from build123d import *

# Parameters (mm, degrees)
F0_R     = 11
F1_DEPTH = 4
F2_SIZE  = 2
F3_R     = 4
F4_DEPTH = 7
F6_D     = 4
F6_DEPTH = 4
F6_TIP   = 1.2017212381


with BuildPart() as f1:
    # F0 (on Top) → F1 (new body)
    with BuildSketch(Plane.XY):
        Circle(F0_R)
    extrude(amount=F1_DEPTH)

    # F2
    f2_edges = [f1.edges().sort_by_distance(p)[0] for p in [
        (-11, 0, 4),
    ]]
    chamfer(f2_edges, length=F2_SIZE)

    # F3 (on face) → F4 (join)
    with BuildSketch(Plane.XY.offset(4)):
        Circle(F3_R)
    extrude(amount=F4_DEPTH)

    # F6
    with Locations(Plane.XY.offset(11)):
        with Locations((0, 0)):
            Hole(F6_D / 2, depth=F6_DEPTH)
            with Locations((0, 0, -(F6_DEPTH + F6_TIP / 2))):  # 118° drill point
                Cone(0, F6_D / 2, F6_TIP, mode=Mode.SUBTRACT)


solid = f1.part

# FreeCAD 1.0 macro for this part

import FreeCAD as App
import Part
import Sketcher
from FreeCAD import Vector
Q = App.Units.Quantity


def edges_at(feature, points):
    """Names of the edges that pass closest to the given points."""
    edges = feature.Shape.Edges
    near = lambda p: min(range(len(edges)), key=lambda i: edges[i].distToShape(Part.Vertex(*p))[0])
    return sorted({f"Edge{near(p) + 1}" for p in points})

doc = App.newDocument("Part")
body = doc.addObject("PartDesign::Body", "Body")

# Sketch on XY plane
sketch1 = body.newObject("Sketcher::SketchObject", "Sketch")
sketch1.AttachmentSupport = (doc.getObject("XY_Plane"), [""])
sketch1.MapMode = "FlatFace"
sketch1.addGeometry(Part.Circle(Vector(0, 0, 0), Vector(0, 0, 1), 11), False)
sketch1.addConstraint([
    Sketcher.Constraint("Coincident", 0, 3, -1, 1),
    Sketcher.Constraint("Diameter", 0, Q("22 mm")),
])
pad1 = body.newObject("PartDesign::Pad", "Pad")
pad1.Profile = sketch1
pad1.Length = 4
doc.recompute()

chamfer = body.newObject("PartDesign::Chamfer", "Chamfer")
chamfer.Base = (pad1, edges_at(pad1, [(-11, 0, 4)]))
chamfer.Size = 2

# Sketch on XY plane
sketch2 = body.newObject("Sketcher::SketchObject", "Sketch001")
sketch2.AttachmentSupport = (doc.getObject("XY_Plane"), [""])
sketch2.MapMode = "FlatFace"
sketch2.AttachmentOffset = App.Placement(Vector(0, 0, 4), App.Rotation())
sketch2.addGeometry(Part.Circle(Vector(0, 0, 0), Vector(0, 0, 1), 4), False)
sketch2.addConstraint([
    Sketcher.Constraint("Coincident", 0, 3, -1, 1),
    Sketcher.Constraint("Diameter", 0, Q("8 mm")),
])
pad2 = body.newObject("PartDesign::Pad", "Pad001")
pad2.Profile = sketch2
pad2.Length = 7

# Sketch on XY plane
sketch3 = body.newObject("Sketcher::SketchObject", "Sketch002")
sketch3.AttachmentSupport = (doc.getObject("XY_Plane"), [""])
sketch3.MapMode = "FlatFace"
sketch3.AttachmentOffset = App.Placement(Vector(0, 0, 11), App.Rotation())
sketch3.addGeometry(Part.Circle(Vector(0, 0, 0), Vector(0, 0, 1), 2), False)
sketch3.addConstraint([
    Sketcher.Constraint("Coincident", 0, 3, -1, 1),
    Sketcher.Constraint("Diameter", 0, Q("4 mm")),
])
doc.recompute()
hole = body.newObject("PartDesign::Hole", "Hole")
hole.Profile = sketch3
hole.ThreadType = "None"
hole.Diameter = 4
hole.DepthType = "Dimension"
hole.Depth = 4
hole.DrillPoint = "Angled"
hole.DrillPointAngle = 118

doc.recompute()
